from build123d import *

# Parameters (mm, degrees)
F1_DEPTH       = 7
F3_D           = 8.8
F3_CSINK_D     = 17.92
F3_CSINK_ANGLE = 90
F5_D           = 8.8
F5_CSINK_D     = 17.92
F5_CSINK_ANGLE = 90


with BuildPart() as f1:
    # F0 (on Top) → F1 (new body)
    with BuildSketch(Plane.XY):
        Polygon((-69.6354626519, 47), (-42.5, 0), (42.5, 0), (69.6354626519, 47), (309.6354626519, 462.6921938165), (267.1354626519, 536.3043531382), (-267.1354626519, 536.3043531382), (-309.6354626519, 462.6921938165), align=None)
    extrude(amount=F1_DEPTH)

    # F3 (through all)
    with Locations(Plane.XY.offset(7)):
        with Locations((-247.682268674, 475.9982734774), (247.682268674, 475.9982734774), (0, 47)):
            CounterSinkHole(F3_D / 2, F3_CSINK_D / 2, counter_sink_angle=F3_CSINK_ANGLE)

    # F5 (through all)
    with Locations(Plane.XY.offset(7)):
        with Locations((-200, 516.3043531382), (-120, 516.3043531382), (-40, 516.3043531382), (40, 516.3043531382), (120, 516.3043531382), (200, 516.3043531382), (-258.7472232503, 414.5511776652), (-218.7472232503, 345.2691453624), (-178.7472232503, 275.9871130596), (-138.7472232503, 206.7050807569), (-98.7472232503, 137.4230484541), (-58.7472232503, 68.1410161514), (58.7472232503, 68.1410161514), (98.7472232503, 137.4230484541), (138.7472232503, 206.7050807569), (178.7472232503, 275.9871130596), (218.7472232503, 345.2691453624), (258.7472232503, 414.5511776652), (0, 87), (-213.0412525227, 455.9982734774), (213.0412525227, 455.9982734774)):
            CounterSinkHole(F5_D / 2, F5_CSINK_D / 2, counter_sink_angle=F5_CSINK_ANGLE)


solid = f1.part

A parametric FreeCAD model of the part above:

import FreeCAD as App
import Part
import Sketcher
Q = App.Units.Quantity


def add_polygon(sketch, points):
    """Adds a closed chain of lines whose ends are joined by coincident constraints."""
    first, n = sketch.GeometryCount, len(points)
    for a, b in zip(points, points[1:] + points[:1]):
        sketch.addGeometry(Part.LineSegment(App.Vector(*a, 0), App.Vector(*b, 0)), False)
    for i in range(n):
        sketch.addConstraint(Sketcher.Constraint("Coincident", first + i, 2, first + (i + 1) % n, 1))

doc = App.newDocument("Part")
params = doc.addObject("Spreadsheet::Sheet", "Params")
for row, (alias, value) in enumerate([
    ("sketch1_width", "85 mm"),
    ("sketch1_length", "85 mm"),
    ("pad1_length", "7 mm"),
    ("sketch2_diameter", "8.8 mm"),
    ("hole_diameter", "8.8 mm"),
    ("hole_csink_diameter", "17.92 mm"),
    ("sketch3_diameter", "8.8 mm"),
    ("hole2_diameter", "8.8 mm"),
    ("hole2_csink_diameter", "17.92 mm"),
], start=1):
    params.set(f"A{row}", alias)
    params.set(f"B{row}", "=" + value)
    params.setAlias(f"B{row}", alias)

body = doc.addObject("PartDesign::Body", "Body")

# Sketch on XY plane
sketch1 = doc.addObject("Sketcher::SketchObject", "Sketch")
body.addObject(sketch1)
sketch1.AttachmentSupport = (doc.XY_Plane, [""])
sketch1.MapMode = "FlatFace"
add_polygon(sketch1, [(-42.5, 0), (42.5, 0), (309.635463, 462.692194), (267.135463, 536.304353), (-267.135463, 536.304353), (-309.635463, 462.692194)])  # lines 0-5
sketch1.addConstraint([
    Sketcher.Constraint("Horizontal", 0),
    Sketcher.Constraint("Horizontal", 3),
    Sketcher.Constraint("Symmetric", 0, 2, 5, 2, -1, 1),
    Sketcher.Constraint("Symmetric", 1, 2, 4, 2, -2),
    Sketcher.Constraint("Parallel", 1, 4),
    Sketcher.Constraint("Parallel", 2, 5),
    Sketcher.Constraint("DistanceX", 0, 1, 0, 2, 85.0),
    Sketcher.Constraint("Angle", 1, Q("60 deg")),
    Sketcher.Constraint("Distance", 2, 85.0),
    Sketcher.Constraint("DistanceX", 3, 2, 3, 1, 534.270925),
])
sketch1.setExpression("Constraints[12]", "Params.sketch1_width")
sketch1.setExpression("Constraints[14]", "Params.sketch1_length")
pad1 = doc.addObject("PartDesign::Pad", "Pad")
body.addObject(pad1)
pad1.Profile = sketch1
pad1.setExpression("Length", "Params.pad1_length")

# Sketch on XY plane
sketch2 = doc.addObject("Sketcher::SketchObject", "Sketch001")
body.addObject(sketch2)
sketch2.AttachmentSupport = (doc.XY_Plane, [""])
sketch2.MapMode = "FlatFace"
sketch2.AttachmentOffset = App.Placement(App.Vector(0, 0, 7), App.Rotation())
sketch2.addGeometry([
    Part.Circle(App.Vector(-247.682269, 475.998273, 0), App.Vector(0, 0, 1), 4.4),
    Part.Circle(App.Vector(247.682269, 475.998273, 0), App.Vector(0, 0, 1), 4.4),
    Part.Circle(App.Vector(0, 47, 0), App.Vector(0, 0, 1), 4.4),
], False)
sketch2.addConstraint([
    Sketcher.Constraint("Equal", 0, 1),
    Sketcher.Constraint("Equal", 1, 2),
    Sketcher.Constraint("Symmetric", 0, 3, 1, 3, -2),
    Sketcher.Constraint("PointOnObject", 2, 3, -2),
    Sketcher.Constraint("Diameter", 0, 8.8),
    Sketcher.Constraint("DistanceY", -1, 1, 2, 3, 47.0),
    Sketcher.Constraint("DistanceX", 0, 3, -1, 1, 247.682269),
    Sketcher.Constraint("DistanceY", -1, 1, 0, 3, 475.998273),
])
sketch2.setExpression("Constraints[4]", "Params.sketch2_diameter")
doc.recompute()
hole = doc.addObject("PartDesign::Hole", "Hole")
body.addObject(hole)
hole.Profile = sketch2
hole.ThreadType = "None"
hole.setExpression("Diameter", "Params.hole_diameter")
hole.DepthType = "ThroughAll"
hole.HoleCutType = "Countersink"
hole.setExpression("HoleCutDiameter", "Params.hole_csink_diameter")
hole.HoleCutCountersinkAngle = 90

# Sketch on XY plane
sketch3 = doc.addObject("Sketcher::SketchObject", "Sketch002")
body.addObject(sketch3)
sketch3.AttachmentSupport = (doc.XY_Plane, [""])
sketch3.MapMode = "FlatFace"
sketch3.AttachmentOffset = App.Placement(App.Vector(0, 0, 7), App.Rotation())
sketch3.addGeometry([
    Part.Circle(App.Vector(-200, 516.304353, 0), App.Vector(0, 0, 1), 4.4),  # 0
    Part.Circle(App.Vector(-120, 516.304353, 0), App.Vector(0, 0, 1), 4.4),  # 1
    Part.Circle(App.Vector(-40, 516.304353, 0), App.Vector(0, 0, 1), 4.4),  # 2
    Part.Circle(App.Vector(40, 516.304353, 0), App.Vector(0, 0, 1), 4.4),  # 3
    Part.Circle(App.Vector(120, 516.304353, 0), App.Vector(0, 0, 1), 4.4),  # 4
    Part.Circle(App.Vector(200, 516.304353, 0), App.Vector(0, 0, 1), 4.4),  # 5
    Part.Circle(App.Vector(-258.747223, 414.551178, 0), App.Vector(0, 0, 1), 4.4),  # 6
    Part.Circle(App.Vector(-218.747223, 345.269145, 0), App.Vector(0, 0, 1), 4.4),  # 7
    Part.Circle(App.Vector(-178.747223, 275.987113, 0), App.Vector(0, 0, 1), 4.4),  # 8
    Part.Circle(App.Vector(-138.747223, 206.705081, 0), App.Vector(0, 0, 1), 4.4),  # 9
    Part.Circle(App.Vector(-98.747223, 137.423048, 0), App.Vector(0, 0, 1), 4.4),  # 10
    Part.Circle(App.Vector(-58.747223, 68.141016, 0), App.Vector(0, 0, 1), 4.4),  # 11
    Part.Circle(App.Vector(58.747223, 68.141016, 0), App.Vector(0, 0, 1), 4.4),  # 12
    Part.Circle(App.Vector(98.747223, 137.423048, 0), App.Vector(0, 0, 1), 4.4),  # 13
    Part.Circle(App.Vector(138.747223, 206.705081, 0), App.Vector(0, 0, 1), 4.4),  # 14
    Part.Circle(App.Vector(178.747223, 275.987113, 0), App.Vector(0, 0, 1), 4.4),  # 15
    Part.Circle(App.Vector(218.747223, 345.269145, 0), App.Vector(0, 0, 1), 4.4),  # 16
    Part.Circle(App.Vector(258.747223, 414.551178, 0), App.Vector(0, 0, 1), 4.4),  # 17
    Part.Circle(App.Vector(0, 87, 0), App.Vector(0, 0, 1), 4.4),  # 18
    Part.Circle(App.Vector(-213.041253, 455.998273, 0), App.Vector(0, 0, 1), 4.4),  # 19
    Part.Circle(App.Vector(213.041253, 455.998273, 0), App.Vector(0, 0, 1), 4.4),  # 20
], False)
sketch3.addConstraint([
    Sketcher.Constraint("Equal", 0, 1),
    Sketcher.Constraint("Equal", 1, 2),
    Sketcher.Constraint("Equal", 2, 3),
    Sketcher.Constraint("Equal", 3, 4),
    Sketcher.Constraint("Equal", 4, 5),
    Sketcher.Constraint("Equal", 5, 6),
    Sketcher.Constraint("Equal", 6, 7),
    Sketcher.Constraint("Equal", 7, 8),
    Sketcher.Constraint("Equal", 8, 9),
    Sketcher.Constraint("Equal", 9, 10),
    Sketcher.Constraint("Equal", 10, 11),
    Sketcher.Constraint("Equal", 11, 12),
    Sketcher.Constraint("Equal", 12, 13),
    Sketcher.Constraint("Equal", 13, 14),
    Sketcher.Constraint("Equal", 14, 15),
    Sketcher.Constraint("Equal", 15, 16),
    Sketcher.Constraint("Equal", 16, 17),
    Sketcher.Constraint("Equal", 17, 18),
    Sketcher.Constraint("Equal", 18, 19),
    Sketcher.Constraint("Equal", 19, 20),
    Sketcher.Constraint("Symmetric", 2, 3, 3, 3, -2),
    Sketcher.Constraint("Symmetric", 1, 3, 4, 3, -2),
    Sketcher.Constraint("Symmetric", 0, 3, 5, 3, -2),
    Sketcher.Constraint("Symmetric", 11, 3, 12, 3, -2),
    Sketcher.Constraint("Symmetric", 10, 3, 13, 3, -2),
    Sketcher.Constraint("Symmetric", 9, 3, 14, 3, -2),
    Sketcher.Constraint("Symmetric", 8, 3, 15, 3, -2),
    Sketcher.Constraint("Symmetric", 7, 3, 16, 3, -2),
    Sketcher.Constraint("Symmetric", 6, 3, 17, 3, -2),
    Sketcher.Constraint("Symmetric", 19, 3, 20, 3, -2),
    Sketcher.Constraint("PointOnObject", 18, 3, -2),
    Sketcher.Constraint("Horizontal", 0, 3, 1, 3),
    Sketcher.Constraint("Horizontal", 1, 3, 2, 3),
    Sketcher.Constraint("Diameter", 0, 8.8),
    Sketcher.Constraint("DistanceX", 0, 3, -1, 1, 200.0),
    Sketcher.Constraint("DistanceX", 1, 3, -1, 1, 120.0),
    Sketcher.Constraint("DistanceX", 2, 3, -1, 1, 40.0),
    Sketcher.Constraint("DistanceY", -1, 1, 18, 3, 87.0),
    Sketcher.Constraint("DistanceX", 6, 3, 7, 3, 40.0),
    Sketcher.Constraint("DistanceX", 7, 3, 8, 3, 40.0),
    Sketcher.Constraint("DistanceX", 8, 3, 9, 3, 40.0),
    Sketcher.Constraint("DistanceX", 9, 3, 10, 3, 40.0),
    Sketcher.Constraint("DistanceX", 10, 3, 11, 3, 40.0),
    Sketcher.Constraint("DistanceY", -1, 1, 9, 3, 206.705081),
    Sketcher.Constraint("DistanceY", -1, 1, 10, 3, 137.423048),
    Sketcher.Constraint("DistanceY", 8, 3, 0, 3, 240.31724),
    Sketcher.Constraint("DistanceY", 10, 3, 6, 3, 277.128129),
    Sketcher.Constraint("DistanceY", 11, 3, 7, 3, 277.128129),
    Sketcher.Constraint("DistanceY", 11, 3, 6, 3, 346.410162),
    Sketcher.Constraint("DistanceX", 6, 3, 19, 3, 45.705971),
    Sketcher.Constraint("DistanceY", 19, 3, 0, 3, 60.30608),
    Sketcher.Constraint("DistanceY", 7, 3, 19, 3, 110.729128),
    Sketcher.Constraint("DistanceX", 6, 3, -1, 1, 258.747223),
])
sketch3.setExpression("Constraints[33]", "Params.sketch3_diameter")
doc.recompute()
hole2 = doc.addObject("PartDesign::Hole", "Hole001")
body.addObject(hole2)
hole2.Profile = sketch3
hole2.ThreadType = "None"
hole2.setExpression("Diameter", "Params.hole2_diameter")
hole2.DepthType = "ThroughAll"
hole2.HoleCutType = "Countersink"
hole2.setExpression("HoleCutDiameter", "Params.hole2_csink_diameter")
hole2.HoleCutCountersinkAngle = 90

doc.recompute()
